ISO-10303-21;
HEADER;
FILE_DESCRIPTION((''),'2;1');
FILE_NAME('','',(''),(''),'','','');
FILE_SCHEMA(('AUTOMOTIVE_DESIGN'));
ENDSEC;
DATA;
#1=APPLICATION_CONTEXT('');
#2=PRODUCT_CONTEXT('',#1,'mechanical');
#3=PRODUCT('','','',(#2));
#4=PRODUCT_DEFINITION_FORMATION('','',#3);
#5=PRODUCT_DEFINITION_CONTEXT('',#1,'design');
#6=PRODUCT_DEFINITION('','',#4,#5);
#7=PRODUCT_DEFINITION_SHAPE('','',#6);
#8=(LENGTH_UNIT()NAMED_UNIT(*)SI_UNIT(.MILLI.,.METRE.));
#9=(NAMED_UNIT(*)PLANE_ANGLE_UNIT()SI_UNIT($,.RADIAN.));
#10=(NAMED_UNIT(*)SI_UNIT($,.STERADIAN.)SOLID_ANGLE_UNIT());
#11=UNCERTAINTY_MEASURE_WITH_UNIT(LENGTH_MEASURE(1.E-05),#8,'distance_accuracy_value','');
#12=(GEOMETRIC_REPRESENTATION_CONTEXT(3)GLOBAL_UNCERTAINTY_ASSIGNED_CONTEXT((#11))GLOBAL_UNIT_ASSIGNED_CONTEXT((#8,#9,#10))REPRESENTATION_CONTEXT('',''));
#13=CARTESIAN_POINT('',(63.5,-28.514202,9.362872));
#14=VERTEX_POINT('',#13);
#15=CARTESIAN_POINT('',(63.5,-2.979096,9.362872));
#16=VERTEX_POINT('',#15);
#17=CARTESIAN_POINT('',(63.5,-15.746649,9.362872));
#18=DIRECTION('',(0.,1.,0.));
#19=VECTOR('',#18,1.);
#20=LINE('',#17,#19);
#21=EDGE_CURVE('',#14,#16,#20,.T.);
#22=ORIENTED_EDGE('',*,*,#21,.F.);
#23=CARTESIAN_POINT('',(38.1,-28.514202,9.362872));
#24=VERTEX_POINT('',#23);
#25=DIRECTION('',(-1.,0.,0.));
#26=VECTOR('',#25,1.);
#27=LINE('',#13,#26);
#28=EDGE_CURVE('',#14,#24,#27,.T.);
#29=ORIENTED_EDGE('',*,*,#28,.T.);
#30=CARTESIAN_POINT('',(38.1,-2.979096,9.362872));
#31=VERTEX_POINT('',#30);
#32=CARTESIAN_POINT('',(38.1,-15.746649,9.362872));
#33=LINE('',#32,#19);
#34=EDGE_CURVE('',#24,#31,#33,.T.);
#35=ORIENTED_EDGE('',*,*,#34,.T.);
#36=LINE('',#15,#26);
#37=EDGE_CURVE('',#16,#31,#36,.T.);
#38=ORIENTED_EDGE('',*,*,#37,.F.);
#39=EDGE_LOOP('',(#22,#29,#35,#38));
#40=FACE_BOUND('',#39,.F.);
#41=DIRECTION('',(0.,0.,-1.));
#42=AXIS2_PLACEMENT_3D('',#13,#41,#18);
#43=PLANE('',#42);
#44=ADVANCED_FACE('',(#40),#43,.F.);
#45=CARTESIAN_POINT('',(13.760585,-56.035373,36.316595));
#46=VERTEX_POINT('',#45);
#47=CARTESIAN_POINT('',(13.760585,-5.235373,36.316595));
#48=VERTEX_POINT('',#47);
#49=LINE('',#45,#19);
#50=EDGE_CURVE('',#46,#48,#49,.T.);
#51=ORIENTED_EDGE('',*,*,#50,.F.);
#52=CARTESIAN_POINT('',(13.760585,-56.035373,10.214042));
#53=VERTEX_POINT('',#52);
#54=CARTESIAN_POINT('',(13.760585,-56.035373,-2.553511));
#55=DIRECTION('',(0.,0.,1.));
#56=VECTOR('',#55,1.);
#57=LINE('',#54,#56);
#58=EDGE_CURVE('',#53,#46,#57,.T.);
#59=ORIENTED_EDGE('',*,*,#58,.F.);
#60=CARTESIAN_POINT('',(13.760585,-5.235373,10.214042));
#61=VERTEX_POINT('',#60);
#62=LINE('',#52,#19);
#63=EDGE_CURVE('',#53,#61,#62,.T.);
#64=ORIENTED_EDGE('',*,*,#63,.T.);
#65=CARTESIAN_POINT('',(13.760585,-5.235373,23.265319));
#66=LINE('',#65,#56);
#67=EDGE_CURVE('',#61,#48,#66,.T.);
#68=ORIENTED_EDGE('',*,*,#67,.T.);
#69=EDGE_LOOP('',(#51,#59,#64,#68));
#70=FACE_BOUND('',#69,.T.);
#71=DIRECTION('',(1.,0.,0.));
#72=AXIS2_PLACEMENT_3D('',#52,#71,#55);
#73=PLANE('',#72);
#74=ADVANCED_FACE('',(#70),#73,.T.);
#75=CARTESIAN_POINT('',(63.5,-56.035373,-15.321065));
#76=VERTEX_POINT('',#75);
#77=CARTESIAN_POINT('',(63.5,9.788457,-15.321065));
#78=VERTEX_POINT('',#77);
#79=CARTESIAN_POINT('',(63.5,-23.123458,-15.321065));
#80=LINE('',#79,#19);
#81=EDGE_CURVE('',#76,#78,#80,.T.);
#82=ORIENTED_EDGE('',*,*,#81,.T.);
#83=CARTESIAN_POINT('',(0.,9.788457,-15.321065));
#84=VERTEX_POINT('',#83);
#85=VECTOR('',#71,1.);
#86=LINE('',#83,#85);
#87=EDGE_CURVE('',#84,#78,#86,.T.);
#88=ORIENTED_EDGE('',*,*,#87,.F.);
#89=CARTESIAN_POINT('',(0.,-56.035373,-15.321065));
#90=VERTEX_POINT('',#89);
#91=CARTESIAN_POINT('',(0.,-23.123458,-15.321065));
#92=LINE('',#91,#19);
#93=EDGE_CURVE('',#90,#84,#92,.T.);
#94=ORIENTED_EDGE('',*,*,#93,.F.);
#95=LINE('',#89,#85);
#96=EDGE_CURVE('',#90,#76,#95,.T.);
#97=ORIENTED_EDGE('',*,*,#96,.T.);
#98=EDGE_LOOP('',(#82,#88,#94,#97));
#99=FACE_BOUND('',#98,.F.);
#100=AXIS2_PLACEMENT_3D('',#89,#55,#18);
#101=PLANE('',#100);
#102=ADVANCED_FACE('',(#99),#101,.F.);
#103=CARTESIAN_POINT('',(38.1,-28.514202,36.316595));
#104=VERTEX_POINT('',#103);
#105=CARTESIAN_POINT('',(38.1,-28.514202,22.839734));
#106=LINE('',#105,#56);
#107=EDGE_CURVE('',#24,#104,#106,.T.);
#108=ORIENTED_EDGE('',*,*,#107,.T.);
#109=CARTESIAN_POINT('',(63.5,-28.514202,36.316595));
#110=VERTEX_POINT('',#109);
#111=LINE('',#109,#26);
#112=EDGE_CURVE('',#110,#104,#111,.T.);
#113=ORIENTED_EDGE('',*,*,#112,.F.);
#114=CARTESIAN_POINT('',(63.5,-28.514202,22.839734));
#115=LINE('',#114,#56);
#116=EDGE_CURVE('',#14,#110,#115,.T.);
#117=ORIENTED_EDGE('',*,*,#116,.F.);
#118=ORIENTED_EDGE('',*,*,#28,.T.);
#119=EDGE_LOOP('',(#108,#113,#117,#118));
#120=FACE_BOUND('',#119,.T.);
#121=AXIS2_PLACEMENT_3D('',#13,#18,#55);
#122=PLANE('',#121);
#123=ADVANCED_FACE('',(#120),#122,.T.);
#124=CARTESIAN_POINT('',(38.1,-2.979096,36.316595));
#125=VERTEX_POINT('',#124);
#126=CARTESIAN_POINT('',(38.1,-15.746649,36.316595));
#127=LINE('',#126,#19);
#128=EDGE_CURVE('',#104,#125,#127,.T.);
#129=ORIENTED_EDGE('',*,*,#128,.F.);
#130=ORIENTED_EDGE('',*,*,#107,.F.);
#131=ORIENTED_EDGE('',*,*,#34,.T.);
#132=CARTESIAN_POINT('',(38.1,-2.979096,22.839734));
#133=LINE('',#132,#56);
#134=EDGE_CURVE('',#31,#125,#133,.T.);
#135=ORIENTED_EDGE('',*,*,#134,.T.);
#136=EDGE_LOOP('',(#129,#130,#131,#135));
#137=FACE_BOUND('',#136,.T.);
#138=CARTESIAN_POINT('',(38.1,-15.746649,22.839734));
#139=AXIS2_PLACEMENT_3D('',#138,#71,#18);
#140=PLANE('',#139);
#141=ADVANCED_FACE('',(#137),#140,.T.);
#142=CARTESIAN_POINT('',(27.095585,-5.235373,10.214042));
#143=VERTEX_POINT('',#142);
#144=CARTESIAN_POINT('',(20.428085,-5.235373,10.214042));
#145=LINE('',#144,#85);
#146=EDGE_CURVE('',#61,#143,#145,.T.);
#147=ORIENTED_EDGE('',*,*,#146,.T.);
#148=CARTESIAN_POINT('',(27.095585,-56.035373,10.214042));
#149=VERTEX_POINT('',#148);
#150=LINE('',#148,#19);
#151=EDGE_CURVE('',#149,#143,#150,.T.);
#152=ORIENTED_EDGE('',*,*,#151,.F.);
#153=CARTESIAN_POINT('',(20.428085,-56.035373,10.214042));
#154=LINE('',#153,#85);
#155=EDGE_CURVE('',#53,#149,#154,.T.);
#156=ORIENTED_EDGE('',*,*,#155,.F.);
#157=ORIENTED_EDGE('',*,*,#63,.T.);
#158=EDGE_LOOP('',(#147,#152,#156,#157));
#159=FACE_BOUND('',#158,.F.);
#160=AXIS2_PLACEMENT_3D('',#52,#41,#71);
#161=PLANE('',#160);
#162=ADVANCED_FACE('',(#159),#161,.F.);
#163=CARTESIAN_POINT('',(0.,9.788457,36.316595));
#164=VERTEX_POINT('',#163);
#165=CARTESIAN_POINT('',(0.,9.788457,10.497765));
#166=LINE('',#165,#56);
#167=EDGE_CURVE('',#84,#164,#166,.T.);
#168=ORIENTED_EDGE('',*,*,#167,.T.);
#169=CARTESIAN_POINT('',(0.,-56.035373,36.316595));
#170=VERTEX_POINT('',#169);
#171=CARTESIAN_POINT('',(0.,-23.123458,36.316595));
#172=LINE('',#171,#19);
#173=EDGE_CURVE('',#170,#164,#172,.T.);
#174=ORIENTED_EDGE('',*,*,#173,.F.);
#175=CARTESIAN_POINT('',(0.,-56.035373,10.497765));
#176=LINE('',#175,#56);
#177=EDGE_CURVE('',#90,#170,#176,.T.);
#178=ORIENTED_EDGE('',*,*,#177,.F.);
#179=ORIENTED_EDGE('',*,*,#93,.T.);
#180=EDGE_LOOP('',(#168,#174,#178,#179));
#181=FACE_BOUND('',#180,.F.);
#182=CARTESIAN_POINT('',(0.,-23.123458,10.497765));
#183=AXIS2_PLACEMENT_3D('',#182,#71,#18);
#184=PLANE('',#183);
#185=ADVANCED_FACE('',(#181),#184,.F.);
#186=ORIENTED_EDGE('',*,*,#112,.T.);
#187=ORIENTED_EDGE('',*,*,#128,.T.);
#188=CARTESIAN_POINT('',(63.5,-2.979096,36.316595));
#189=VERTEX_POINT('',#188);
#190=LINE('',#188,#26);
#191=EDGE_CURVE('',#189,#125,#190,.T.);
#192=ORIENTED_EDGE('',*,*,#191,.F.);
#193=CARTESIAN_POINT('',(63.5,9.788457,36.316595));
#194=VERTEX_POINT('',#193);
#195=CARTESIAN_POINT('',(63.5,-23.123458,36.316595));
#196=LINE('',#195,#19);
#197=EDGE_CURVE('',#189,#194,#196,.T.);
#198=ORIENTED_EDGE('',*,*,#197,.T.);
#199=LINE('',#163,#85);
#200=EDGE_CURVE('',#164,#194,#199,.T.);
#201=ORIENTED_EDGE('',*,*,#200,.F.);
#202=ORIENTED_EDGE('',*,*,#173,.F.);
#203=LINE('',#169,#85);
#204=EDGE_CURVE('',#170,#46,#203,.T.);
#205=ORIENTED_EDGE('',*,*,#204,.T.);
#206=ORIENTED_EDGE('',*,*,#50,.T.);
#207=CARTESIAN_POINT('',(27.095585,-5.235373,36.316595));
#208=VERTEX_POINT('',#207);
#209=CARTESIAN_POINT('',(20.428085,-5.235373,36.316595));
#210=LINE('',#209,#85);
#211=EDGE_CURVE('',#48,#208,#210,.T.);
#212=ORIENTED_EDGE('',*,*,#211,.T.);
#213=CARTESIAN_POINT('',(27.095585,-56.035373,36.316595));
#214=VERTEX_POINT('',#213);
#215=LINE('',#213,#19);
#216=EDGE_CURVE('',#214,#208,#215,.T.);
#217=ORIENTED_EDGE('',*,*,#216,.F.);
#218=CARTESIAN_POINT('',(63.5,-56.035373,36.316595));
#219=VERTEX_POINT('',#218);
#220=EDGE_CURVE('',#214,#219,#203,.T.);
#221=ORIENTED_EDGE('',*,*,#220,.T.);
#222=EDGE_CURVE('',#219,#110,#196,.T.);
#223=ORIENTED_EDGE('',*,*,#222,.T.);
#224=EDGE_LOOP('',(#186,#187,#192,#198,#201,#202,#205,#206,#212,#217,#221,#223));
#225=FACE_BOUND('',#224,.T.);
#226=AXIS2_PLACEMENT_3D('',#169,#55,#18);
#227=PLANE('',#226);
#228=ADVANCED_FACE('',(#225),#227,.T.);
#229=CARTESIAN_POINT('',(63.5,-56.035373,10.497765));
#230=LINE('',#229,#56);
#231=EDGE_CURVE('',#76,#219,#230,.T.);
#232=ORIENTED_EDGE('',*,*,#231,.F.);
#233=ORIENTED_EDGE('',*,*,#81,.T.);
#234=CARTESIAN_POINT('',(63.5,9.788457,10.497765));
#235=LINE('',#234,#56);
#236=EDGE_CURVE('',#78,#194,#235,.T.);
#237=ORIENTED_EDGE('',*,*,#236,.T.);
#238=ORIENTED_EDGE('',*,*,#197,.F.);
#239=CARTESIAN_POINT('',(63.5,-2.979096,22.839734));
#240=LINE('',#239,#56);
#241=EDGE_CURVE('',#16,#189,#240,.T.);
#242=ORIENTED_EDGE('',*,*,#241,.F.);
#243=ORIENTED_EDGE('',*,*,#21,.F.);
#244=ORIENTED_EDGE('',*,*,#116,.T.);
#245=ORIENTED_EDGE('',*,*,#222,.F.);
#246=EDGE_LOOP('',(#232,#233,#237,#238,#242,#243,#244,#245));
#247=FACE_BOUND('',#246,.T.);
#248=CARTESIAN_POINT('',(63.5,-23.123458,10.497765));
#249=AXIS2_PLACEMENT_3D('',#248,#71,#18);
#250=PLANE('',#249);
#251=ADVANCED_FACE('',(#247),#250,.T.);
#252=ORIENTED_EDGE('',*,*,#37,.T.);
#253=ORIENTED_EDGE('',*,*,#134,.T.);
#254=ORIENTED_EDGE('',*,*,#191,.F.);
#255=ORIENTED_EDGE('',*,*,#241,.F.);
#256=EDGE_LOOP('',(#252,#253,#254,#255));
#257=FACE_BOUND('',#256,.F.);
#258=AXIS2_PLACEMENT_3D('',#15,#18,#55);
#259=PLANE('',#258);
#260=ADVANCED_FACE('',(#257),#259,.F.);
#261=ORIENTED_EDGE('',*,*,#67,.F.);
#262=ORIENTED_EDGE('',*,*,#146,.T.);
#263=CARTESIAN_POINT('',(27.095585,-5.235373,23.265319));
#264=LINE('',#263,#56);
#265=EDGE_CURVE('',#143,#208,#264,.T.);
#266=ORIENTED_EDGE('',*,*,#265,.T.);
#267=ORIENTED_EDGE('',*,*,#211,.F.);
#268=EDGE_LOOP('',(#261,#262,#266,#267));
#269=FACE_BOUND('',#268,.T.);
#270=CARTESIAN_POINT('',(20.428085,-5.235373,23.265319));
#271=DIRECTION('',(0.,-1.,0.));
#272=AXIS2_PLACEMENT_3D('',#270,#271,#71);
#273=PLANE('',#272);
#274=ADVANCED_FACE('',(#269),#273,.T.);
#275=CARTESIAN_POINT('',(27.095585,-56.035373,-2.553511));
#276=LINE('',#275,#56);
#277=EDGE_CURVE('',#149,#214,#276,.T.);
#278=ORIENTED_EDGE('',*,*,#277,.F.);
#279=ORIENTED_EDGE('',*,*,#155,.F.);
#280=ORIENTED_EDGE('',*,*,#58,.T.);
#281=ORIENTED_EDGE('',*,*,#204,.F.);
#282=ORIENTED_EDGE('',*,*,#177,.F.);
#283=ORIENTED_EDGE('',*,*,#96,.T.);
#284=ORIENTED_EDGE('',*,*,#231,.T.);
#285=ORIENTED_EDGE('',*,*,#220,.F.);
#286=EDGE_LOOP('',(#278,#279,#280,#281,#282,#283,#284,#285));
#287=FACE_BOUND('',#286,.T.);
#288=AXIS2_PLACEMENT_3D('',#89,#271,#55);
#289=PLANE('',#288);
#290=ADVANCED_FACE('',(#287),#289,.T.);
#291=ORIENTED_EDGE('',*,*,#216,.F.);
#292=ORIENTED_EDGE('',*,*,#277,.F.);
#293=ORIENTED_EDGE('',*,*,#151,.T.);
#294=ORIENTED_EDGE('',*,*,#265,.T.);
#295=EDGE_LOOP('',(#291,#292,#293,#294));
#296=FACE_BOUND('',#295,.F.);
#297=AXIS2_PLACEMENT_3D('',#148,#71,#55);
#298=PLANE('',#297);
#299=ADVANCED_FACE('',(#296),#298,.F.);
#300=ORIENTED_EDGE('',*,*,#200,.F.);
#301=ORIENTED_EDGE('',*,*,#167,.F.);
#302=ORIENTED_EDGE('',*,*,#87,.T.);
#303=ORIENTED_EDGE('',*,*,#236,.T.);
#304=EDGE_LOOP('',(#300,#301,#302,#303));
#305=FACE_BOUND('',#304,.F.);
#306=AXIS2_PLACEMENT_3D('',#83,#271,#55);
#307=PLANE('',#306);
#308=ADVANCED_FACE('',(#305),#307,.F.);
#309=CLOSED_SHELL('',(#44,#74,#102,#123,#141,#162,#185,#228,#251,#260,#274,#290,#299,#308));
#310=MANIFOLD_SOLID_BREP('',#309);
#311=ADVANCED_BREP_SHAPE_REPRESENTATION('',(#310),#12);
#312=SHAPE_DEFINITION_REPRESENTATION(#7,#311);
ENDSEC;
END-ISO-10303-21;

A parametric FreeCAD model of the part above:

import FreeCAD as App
import Part
import Sketcher
from FreeCAD import Vector
Q = App.Units.Quantity


def add_polygon(sketch, points):
    """Adds a closed chain of lines whose ends are joined by coincident constraints."""
    first, n = sketch.GeometryCount, len(points)
    for a, b in zip(points, points[1:] + points[:1]):
        sketch.addGeometry(Part.LineSegment(App.Vector(*a, 0), App.Vector(*b, 0)), False)
    for i in range(n):
        sketch.addConstraint(Sketcher.Constraint("Coincident", first + i, 2, first + (i + 1) % n, 1))

doc = App.newDocument("Part")
body = doc.addObject("PartDesign::Body", "Body")

sketch1 = body.newObject("Sketcher::SketchObject", "Sketch")
sketch1.AttachmentSupport = (doc.getObject("YZ_Plane"), [""])
sketch1.MapMode = "FlatFace"
add_polygon(sketch1, [(-56.035373, 36.316595), (-56.035373, -15.321065), (9.788457, -15.321065), (9.788457, 36.316595)])
sketch1.addConstraint([
    Sketcher.Constraint("Vertical", 0),
    Sketcher.Constraint("Horizontal", 1),
    Sketcher.Constraint("Vertical", 2),
    Sketcher.Constraint("Horizontal", 3),
    Sketcher.Constraint("DistanceX", 1, 1, 1, 2, 65.823829),
    Sketcher.Constraint("DistanceY", 0, 2, 0, 1, 51.637661),
    Sketcher.Constraint("DistanceX", 0, 2, -1, 1, 56.035373),
    Sketcher.Constraint("DistanceY", 0, 2, -1, 1, 15.321065),
])
pad1 = body.newObject("PartDesign::Pad", "Pad")
pad1.Profile = sketch1
pad1.Length = Q("2.5 in")

sketch2 = body.newObject("Sketcher::SketchObject", "Sketch001")
sketch2.AttachmentSupport = (doc.getObject("YZ_Plane"), [""])
sketch2.MapMode = "FlatFace"
sketch2.AttachmentOffset = App.Placement(Vector(0, 0, 2.5 * 25.4), App.Rotation())
add_polygon(sketch2, [(-28.514202, 36.316595), (-28.514202, 9.362872), (-2.979096, 9.362872), (-2.979096, 36.316595)])
sketch2.addConstraint([
    Sketcher.Constraint("Vertical", 0),
    Sketcher.Constraint("Horizontal", 1),
    Sketcher.Constraint("Vertical", 2),
    Sketcher.Constraint("Horizontal", 3),
    Sketcher.Constraint("DistanceX", 1, 1, 1, 2, 25.535107),
    Sketcher.Constraint("DistanceY", 0, 2, 0, 1, 26.953723),
    Sketcher.Constraint("DistanceX", 0, 2, -1, 1, 28.514202),
    Sketcher.Constraint("DistanceY", -1, 1, 0, 2, 9.362872),
])
pocket1 = body.newObject("PartDesign::Pocket", "Pocket")
pocket1.Profile = sketch2
pocket1.Length = Q("1 in")

sketch3 = body.newObject("Sketcher::SketchObject", "Sketch002")
sketch3.AttachmentSupport = (doc.getObject("XZ_Plane"), [""])
sketch3.MapMode = "FlatFace"
sketch3.AttachmentOffset = App.Placement(Vector(0, 0, 56.035373), App.Rotation())
add_polygon(sketch3, [(13.760585, 36.316595), (13.760585, 10.214042), (27.095585, 10.214042), (27.095585, 36.316595)])
sketch3.addConstraint([
    Sketcher.Constraint("Vertical", 0),
    Sketcher.Constraint("Horizontal", 1),
    Sketcher.Constraint("Vertical", 2),
    Sketcher.Constraint("Horizontal", 3),
    Sketcher.Constraint("DistanceX", 1, 1, 1, 2, Q("0.525 in")),
    Sketcher.Constraint("DistanceY", 0, 2, 0, 1, 26.102553),
    Sketcher.Constraint("DistanceX", -1, 1, 0, 2, 13.760585),
    Sketcher.Constraint("DistanceY", -1, 1, 0, 2, 10.214042),
])
pocket2 = body.newObject("PartDesign::Pocket", "Pocket001")
pocket2.Profile = sketch3
pocket2.Length = Q("2 in")

doc.recompute()
